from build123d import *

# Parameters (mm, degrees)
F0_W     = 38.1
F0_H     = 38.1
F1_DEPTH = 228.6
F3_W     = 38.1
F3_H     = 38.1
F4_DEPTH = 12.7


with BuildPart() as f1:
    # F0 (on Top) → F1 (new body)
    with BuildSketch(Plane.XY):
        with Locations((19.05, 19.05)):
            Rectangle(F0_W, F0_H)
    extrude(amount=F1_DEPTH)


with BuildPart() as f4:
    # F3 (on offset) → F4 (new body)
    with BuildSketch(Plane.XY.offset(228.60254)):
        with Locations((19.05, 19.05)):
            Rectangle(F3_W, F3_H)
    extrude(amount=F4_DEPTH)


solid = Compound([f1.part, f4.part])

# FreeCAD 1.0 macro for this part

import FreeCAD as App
import Part
import Sketcher
from FreeCAD import Vector
Q = App.Units.Quantity

doc = App.newDocument("Part")
body = doc.addObject("PartDesign::Body", "Body")

sketch1 = body.newObject("Sketcher::SketchObject", "Sketch")
sketch1.AttachmentSupport = (doc.getObject("XY_Plane"), [""])
sketch1.MapMode = "FlatFace"
sketch1.addGeometry([
    Part.LineSegment(Vector(0, 38, 0), Vector(0, 0, 0)),
    Part.LineSegment(Vector(0, 0, 0), Vector(38, 0, 0)),
    Part.LineSegment(Vector(38, 0, 0), Vector(38, 38, 0)),
    Part.LineSegment(Vector(38, 38, 0), Vector(0, 38, 0)),
], False)
sketch1.addConstraint([
    Sketcher.Constraint("Coincident", 0, 2, 1, 1),
    Sketcher.Constraint("Coincident", 1, 2, 2, 1),
    Sketcher.Constraint("Coincident", 2, 2, 3, 1),
    Sketcher.Constraint("Coincident", 3, 2, 0, 1),
    Sketcher.Constraint("Vertical", 0),
    Sketcher.Constraint("Horizontal", 1),
    Sketcher.Constraint("Vertical", 2),
    Sketcher.Constraint("Horizontal", 3),
    Sketcher.Constraint("Coincident", 0, 2, -1, 1),
    Sketcher.Constraint("Equal", 3, 0),
    Sketcher.Constraint("DistanceX", 1, 1, 1, 2, Q("1.5 in")),
])
pad1 = body.newObject("PartDesign::Pad", "Pad")
pad1.Profile = sketch1
pad1.Length = Q("9 in")
body2 = doc.addObject("PartDesign::Body", "Body001")

sketch2 = body2.newObject("Sketcher::SketchObject", "Sketch001")
sketch2.AttachmentSupport = (doc.getObject("XY_Plane001"), [""])
sketch2.MapMode = "FlatFace"
sketch2.AttachmentOffset = App.Placement(Vector(0, 0, 9.0001 * 25.4), App.Rotation())
sketch2.addGeometry([
    Part.LineSegment(Vector(0, 38, 0), Vector(0, 0, 0)),
    Part.LineSegment(Vector(0, 0, 0), Vector(38, 0, 0)),
    Part.LineSegment(Vector(38, 0, 0), Vector(38, 38, 0)),
    Part.LineSegment(Vector(38, 38, 0), Vector(0, 38, 0)),
], False)
sketch2.addConstraint([
    Sketcher.Constraint("Coincident", 0, 2, 1, 1),
    Sketcher.Constraint("Coincident", 1, 2, 2, 1),
    Sketcher.Constraint("Coincident", 2, 2, 3, 1),
    Sketcher.Constraint("Coincident", 3, 2, 0, 1),
    Sketcher.Constraint("Vertical", 0),
    Sketcher.Constraint("Horizontal", 1),
    Sketcher.Constraint("Vertical", 2),
    Sketcher.Constraint("Horizontal", 3),
    Sketcher.Constraint("Coincident", 0, 2, -1, 1),
    Sketcher.Constraint("Equal", 3, 0),
    Sketcher.Constraint("DistanceX", 1, 1, 1, 2, Q("1.5 in")),
])
pad2 = body2.newObject("PartDesign::Pad", "Pad001")
pad2.Profile = sketch2
pad2.Length = Q("0.5 in")

doc.recompute()
